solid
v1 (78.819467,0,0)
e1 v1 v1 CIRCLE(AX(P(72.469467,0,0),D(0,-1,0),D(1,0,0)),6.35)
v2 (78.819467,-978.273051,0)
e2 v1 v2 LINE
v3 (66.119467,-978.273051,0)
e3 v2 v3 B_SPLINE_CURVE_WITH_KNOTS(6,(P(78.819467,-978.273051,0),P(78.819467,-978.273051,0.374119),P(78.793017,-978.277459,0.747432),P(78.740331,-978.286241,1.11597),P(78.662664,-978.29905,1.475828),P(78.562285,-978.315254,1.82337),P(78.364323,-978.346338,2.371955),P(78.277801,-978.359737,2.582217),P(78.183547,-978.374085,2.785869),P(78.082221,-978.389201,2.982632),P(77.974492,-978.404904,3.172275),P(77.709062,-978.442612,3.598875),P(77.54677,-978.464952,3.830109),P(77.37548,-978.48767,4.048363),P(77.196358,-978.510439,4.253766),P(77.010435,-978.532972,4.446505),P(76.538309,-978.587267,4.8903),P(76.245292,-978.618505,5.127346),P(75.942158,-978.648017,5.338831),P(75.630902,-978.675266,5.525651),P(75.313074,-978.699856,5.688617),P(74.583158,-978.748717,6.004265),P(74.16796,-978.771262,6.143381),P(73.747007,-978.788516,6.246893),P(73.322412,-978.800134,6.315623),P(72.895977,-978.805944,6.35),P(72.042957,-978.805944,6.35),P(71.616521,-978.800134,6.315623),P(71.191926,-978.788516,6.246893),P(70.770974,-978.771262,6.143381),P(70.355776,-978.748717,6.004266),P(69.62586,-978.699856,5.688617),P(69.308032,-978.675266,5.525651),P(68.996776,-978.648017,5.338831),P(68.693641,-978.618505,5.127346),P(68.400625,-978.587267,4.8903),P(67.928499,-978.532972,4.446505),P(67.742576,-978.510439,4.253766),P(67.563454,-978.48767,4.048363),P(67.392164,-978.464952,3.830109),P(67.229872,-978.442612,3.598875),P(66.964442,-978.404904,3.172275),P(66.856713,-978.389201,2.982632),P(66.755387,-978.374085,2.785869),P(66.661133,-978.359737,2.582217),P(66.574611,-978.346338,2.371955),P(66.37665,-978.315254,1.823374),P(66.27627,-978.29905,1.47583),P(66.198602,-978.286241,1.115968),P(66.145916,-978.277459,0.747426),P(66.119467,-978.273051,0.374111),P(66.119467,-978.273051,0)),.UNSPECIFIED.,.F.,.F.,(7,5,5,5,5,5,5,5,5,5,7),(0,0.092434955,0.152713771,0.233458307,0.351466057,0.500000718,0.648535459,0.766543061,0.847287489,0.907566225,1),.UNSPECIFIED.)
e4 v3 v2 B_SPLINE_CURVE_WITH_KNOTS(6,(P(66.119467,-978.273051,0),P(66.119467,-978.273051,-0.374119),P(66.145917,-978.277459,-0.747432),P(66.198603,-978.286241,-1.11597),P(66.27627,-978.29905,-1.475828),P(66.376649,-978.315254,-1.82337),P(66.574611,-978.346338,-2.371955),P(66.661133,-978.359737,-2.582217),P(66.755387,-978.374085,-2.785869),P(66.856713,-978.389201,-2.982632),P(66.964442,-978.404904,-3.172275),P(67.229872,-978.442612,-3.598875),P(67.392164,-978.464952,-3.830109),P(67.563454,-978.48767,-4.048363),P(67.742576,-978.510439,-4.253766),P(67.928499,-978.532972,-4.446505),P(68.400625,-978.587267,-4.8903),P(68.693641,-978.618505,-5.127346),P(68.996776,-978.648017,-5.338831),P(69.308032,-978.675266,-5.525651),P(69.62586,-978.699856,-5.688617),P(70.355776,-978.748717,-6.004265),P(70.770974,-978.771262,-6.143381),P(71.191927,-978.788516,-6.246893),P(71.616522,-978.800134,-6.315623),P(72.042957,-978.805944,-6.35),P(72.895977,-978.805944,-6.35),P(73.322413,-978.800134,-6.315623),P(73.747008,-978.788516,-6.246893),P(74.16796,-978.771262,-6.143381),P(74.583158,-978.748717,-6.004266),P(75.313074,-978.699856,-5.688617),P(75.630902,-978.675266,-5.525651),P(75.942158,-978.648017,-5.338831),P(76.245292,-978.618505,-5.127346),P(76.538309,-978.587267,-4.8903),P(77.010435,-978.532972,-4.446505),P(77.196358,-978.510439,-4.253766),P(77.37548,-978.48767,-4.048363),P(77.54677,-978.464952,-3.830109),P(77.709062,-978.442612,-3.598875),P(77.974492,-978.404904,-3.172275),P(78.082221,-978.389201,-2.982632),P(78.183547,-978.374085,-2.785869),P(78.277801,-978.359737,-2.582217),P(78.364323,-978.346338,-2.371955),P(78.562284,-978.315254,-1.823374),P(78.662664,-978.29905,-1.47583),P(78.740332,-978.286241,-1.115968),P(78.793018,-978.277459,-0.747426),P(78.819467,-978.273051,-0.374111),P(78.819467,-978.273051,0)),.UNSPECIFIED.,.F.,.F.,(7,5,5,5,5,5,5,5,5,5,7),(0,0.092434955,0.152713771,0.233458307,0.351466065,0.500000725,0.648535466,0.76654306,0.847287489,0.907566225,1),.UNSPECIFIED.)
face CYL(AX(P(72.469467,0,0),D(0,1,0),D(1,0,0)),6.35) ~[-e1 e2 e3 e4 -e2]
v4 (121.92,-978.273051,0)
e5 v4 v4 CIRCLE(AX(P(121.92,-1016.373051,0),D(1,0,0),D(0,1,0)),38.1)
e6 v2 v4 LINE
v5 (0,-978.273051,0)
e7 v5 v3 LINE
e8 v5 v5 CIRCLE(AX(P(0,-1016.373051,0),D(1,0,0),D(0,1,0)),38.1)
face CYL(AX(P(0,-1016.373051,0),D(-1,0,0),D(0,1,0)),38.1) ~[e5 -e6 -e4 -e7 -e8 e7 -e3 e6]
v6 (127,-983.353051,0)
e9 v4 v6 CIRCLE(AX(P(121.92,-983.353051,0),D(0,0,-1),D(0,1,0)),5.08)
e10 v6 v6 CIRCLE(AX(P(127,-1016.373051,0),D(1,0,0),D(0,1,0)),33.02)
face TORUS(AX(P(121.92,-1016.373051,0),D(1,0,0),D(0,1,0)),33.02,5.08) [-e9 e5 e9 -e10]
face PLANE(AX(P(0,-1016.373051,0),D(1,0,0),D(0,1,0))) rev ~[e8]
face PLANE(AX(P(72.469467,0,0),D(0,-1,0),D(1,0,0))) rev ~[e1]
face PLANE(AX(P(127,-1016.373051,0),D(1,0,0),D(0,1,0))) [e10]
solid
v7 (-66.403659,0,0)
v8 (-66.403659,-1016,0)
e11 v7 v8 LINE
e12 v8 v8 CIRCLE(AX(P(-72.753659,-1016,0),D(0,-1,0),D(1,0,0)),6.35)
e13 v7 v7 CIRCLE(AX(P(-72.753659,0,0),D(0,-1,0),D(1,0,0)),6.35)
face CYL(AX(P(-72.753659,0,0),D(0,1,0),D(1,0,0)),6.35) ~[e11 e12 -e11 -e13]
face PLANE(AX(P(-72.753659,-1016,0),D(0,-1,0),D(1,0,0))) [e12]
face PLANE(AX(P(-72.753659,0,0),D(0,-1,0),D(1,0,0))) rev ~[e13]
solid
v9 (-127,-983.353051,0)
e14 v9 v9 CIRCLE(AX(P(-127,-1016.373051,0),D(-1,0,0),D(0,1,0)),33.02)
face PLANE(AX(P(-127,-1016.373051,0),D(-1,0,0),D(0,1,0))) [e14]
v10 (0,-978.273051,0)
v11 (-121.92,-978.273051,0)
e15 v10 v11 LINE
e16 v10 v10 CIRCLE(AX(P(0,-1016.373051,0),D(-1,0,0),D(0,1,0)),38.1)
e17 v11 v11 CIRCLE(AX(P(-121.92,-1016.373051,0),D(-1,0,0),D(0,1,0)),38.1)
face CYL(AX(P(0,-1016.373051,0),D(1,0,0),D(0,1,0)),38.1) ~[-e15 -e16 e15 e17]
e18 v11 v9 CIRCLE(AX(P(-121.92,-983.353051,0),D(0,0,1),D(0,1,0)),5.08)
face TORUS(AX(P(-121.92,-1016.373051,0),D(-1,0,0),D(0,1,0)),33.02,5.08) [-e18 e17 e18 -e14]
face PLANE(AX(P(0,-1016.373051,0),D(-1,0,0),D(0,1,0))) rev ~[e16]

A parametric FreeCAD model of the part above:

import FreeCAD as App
import Part
import Sketcher

V = App.Vector
Q = App.Units.Quantity


def edges_at(feature, points):
    """Names of the edges that pass closest to the given points."""
    edges = feature.Shape.Edges
    near = lambda p: min(range(len(edges)), key=lambda i: edges[i].distToShape(Part.Vertex(*p))[0])
    return sorted({f"Edge{near(p) + 1}" for p in points})

doc = App.newDocument("Part")
body = doc.addObject("PartDesign::Body", "Body")
body.AllowCompound = True

# Sketch on XZ plane
sketch1 = body.newObject("Sketcher::SketchObject", "Sketch")
sketch1.AttachmentSupport = (doc.getObject("XZ_Plane"), [""])
sketch1.MapMode = "FlatFace"
sketch1.addGeometry([
    Part.Circle(V(72, 0, 0), V(0, 0, 1), 6),
    Part.Circle(V(-73, 0, 0), V(0, 0, 1), 6),
], False)
sketch1.addConstraint([
    Sketcher.Constraint("Equal", 0, 1),
    Sketcher.Constraint("PointOnObject", 0, 3, -1),
    Sketcher.Constraint("PointOnObject", 1, 3, -1),
    Sketcher.Constraint("Diameter", 0, Q("0.5 in")),
    Sketcher.Constraint("DistanceX", 1, 3, -1, 1, Q("72.753659 mm")),
    Sketcher.Constraint("DistanceX", -1, 1, 0, 3, Q("72.469467 mm")),
])
pad1 = body.newObject("PartDesign::Pad", "Pad")
pad1.Profile = sketch1
pad1.Length = Q("40 in")

# Sketch on YZ plane
sketch2 = body.newObject("Sketcher::SketchObject", "Sketch001")
sketch2.AttachmentSupport = (doc.getObject("YZ_Plane"), [""])
sketch2.MapMode = "FlatFace"
sketch2.addGeometry(Part.Circle(V(-1016, 0, 0), V(0, 0, 1), 38), False)
sketch2.addConstraint([
    Sketcher.Constraint("PointOnObject", 0, 3, -1),
    Sketcher.Constraint("Diameter", 0, Q("3 in")),
    Sketcher.Constraint("DistanceX", 0, 3, -1, 1, Q("1016.373051 mm")),
])
pad2 = body.newObject("PartDesign::Pad", "Pad001")
pad2.Profile = sketch2
pad2.Length = Q("5 in")
doc.recompute()

fillet = body.newObject("PartDesign::Fillet", "Fillet")
fillet.Base = (pad2, edges_at(pad2, [(127, -1054.473, 0)]))
fillet.Radius = Q("0.2 in")
body2 = doc.addObject("PartDesign::Body", "Body001")

# Sketch on YZ plane
sketch3 = body2.newObject("Sketcher::SketchObject", "Sketch002")
sketch3.AttachmentSupport = (doc.getObject("YZ_Plane001"), [""])
sketch3.MapMode = "FlatFace"
sketch3.addGeometry(Part.Circle(V(-1016, 0, 0), V(0, 0, 1), 38), False)
sketch3.addConstraint([
    Sketcher.Constraint("PointOnObject", 0, 3, -1),
    Sketcher.Constraint("Diameter", 0, Q("3 in")),
    Sketcher.Constraint("DistanceX", 0, 3, -1, 1, Q("1016.373051 mm")),
])
pad3 = body2.newObject("PartDesign::Pad", "Pad002")
pad3.Profile = sketch3
pad3.Length = Q("5 in")
pad3.Reversed = True
doc.recompute()

fillet2 = body2.newObject("PartDesign::Fillet", "Fillet001")
fillet2.Base = (pad3, edges_at(pad3, [(-127, -1054.473, 0)]))
fillet2.Radius = Q("0.2 in")

doc.recompute()
